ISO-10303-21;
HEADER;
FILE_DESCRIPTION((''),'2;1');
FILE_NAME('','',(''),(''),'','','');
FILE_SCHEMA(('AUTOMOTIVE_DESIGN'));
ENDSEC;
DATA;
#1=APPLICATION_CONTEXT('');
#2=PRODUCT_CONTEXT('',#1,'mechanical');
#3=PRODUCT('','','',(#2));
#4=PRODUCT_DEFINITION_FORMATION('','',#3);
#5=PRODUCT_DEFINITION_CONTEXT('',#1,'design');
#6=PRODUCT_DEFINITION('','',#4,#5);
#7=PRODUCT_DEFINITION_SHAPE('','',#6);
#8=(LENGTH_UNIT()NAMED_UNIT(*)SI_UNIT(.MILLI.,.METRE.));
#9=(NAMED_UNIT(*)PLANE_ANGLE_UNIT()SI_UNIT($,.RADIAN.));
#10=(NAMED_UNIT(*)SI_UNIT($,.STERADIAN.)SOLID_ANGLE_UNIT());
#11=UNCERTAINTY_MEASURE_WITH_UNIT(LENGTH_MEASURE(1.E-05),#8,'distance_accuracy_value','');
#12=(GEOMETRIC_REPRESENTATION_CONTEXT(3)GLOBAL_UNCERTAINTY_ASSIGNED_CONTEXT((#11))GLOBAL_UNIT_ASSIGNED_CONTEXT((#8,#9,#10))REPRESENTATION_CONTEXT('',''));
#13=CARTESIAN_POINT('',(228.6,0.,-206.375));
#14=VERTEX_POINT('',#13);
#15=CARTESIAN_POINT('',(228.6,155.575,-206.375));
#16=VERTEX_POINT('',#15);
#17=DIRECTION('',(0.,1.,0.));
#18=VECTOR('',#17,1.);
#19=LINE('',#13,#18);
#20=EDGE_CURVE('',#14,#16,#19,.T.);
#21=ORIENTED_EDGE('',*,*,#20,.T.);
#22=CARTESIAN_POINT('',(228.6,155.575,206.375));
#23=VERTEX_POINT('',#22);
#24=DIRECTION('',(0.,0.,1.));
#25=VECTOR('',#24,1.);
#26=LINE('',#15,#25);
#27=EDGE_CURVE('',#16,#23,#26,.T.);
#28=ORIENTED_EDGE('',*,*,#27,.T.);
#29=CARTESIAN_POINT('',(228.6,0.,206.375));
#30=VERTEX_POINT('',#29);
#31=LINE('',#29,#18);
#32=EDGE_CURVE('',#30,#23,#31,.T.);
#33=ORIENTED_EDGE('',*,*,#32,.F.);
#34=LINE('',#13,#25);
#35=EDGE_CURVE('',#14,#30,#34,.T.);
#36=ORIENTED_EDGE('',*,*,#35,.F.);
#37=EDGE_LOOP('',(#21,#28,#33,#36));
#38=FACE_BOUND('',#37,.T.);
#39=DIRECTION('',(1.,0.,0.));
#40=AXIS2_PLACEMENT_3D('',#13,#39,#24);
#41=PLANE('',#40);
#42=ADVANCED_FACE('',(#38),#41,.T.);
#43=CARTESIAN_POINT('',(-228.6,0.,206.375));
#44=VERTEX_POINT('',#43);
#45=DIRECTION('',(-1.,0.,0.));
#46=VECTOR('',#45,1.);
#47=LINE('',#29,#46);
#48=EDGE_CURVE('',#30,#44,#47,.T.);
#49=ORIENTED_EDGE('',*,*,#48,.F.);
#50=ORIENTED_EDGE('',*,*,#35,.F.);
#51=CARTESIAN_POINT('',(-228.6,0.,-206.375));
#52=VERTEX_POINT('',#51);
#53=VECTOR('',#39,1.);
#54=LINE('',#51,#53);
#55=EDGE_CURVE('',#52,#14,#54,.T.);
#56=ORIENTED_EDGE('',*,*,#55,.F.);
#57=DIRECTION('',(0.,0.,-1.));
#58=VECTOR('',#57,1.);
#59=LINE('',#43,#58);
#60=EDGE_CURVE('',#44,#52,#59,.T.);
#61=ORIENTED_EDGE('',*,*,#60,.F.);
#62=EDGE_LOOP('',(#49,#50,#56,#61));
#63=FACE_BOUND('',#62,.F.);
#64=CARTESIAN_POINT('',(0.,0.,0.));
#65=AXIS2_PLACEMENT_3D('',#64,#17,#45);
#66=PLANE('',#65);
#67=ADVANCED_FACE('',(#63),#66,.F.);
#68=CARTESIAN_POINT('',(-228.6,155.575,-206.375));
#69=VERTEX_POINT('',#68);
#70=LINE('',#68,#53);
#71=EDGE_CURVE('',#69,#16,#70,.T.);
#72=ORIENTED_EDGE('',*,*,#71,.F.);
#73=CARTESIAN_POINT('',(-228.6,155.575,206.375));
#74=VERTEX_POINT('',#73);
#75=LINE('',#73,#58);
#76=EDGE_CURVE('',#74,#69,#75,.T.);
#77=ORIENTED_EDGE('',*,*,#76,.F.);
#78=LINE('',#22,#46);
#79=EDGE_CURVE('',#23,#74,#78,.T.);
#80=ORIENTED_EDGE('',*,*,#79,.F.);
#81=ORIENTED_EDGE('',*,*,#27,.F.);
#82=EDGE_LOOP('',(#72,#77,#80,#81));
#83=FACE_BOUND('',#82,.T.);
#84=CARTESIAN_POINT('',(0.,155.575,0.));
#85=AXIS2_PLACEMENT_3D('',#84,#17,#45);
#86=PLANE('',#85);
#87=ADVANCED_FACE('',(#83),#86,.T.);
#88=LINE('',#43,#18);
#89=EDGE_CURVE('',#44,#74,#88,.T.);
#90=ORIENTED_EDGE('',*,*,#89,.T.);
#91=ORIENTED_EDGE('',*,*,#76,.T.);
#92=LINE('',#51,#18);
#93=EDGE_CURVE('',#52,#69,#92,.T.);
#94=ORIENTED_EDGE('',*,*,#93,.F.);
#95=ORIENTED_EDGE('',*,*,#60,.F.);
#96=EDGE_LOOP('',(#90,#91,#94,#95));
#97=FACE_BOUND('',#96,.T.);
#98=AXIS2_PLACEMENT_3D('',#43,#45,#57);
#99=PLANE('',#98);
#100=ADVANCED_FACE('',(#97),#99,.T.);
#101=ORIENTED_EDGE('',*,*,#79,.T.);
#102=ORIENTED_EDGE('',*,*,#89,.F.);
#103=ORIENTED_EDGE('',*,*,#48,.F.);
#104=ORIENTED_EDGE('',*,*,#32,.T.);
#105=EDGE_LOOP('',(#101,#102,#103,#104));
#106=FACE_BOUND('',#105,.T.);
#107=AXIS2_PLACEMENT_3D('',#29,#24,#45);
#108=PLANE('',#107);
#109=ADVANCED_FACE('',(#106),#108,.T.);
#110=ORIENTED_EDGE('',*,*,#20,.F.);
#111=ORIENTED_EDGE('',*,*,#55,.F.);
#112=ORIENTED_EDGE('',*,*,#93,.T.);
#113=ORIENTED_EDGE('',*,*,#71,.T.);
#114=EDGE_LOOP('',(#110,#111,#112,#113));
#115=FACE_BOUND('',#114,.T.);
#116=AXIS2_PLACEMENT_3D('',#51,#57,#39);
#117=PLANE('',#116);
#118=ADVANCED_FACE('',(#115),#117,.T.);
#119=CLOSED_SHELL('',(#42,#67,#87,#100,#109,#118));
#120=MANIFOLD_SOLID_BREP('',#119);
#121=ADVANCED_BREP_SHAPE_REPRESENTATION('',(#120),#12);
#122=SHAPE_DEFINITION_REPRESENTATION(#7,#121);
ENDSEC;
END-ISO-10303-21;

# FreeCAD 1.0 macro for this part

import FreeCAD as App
import Part
import Sketcher

V = App.Vector
Q = App.Units.Quantity

doc = App.newDocument("Part")
body = doc.addObject("PartDesign::Body", "Body")

# Sketch on XZ plane
sketch1 = body.newObject("Sketcher::SketchObject", "Sketch")
sketch1.AttachmentSupport = (doc.getObject("XZ_Plane"), [""])
sketch1.MapMode = "FlatFace"
sketch1.addGeometry(Part.LineSegment(V(228.6, -206.375, 0), V(-228.6, -206.375, 0)), False)
sketch1.addGeometry(Part.LineSegment(V(-228.6, -206.375, 0), V(-228.6, 206.375, 0)), False)
sketch1.addGeometry(Part.LineSegment(V(-228.6, 206.375, 0), V(228.6, 206.375, 0)), False)
sketch1.addGeometry(Part.LineSegment(V(228.6, 206.375, 0), V(228.6, -206.375, 0)), False)
sketch1.addConstraint(Sketcher.Constraint("Coincident", 0, 2, 1, 1))
sketch1.addConstraint(Sketcher.Constraint("Coincident", 1, 2, 2, 1))
sketch1.addConstraint(Sketcher.Constraint("Coincident", 2, 2, 3, 1))
sketch1.addConstraint(Sketcher.Constraint("Coincident", 3, 2, 0, 1))
sketch1.addConstraint(Sketcher.Constraint("Horizontal", 0))
sketch1.addConstraint(Sketcher.Constraint("Vertical", 1))
sketch1.addConstraint(Sketcher.Constraint("Horizontal", 2))
sketch1.addConstraint(Sketcher.Constraint("Vertical", 3))
sketch1.addConstraint(Sketcher.Constraint("Symmetric", 0, 2, 2, 2, -1, 1))
sketch1.addConstraint(Sketcher.Constraint("DistanceX", 0, 2, 0, 1, Q("18 in")))
sketch1.addConstraint(Sketcher.Constraint("DistanceY", 1, 1, 1, 2, Q("16.25 in")))
pad1 = body.newObject("PartDesign::Pad", "Pad")
pad1.Profile = sketch1
pad1.Length = Q("6.125 in")
pad1.Reversed = True

doc.recompute()
